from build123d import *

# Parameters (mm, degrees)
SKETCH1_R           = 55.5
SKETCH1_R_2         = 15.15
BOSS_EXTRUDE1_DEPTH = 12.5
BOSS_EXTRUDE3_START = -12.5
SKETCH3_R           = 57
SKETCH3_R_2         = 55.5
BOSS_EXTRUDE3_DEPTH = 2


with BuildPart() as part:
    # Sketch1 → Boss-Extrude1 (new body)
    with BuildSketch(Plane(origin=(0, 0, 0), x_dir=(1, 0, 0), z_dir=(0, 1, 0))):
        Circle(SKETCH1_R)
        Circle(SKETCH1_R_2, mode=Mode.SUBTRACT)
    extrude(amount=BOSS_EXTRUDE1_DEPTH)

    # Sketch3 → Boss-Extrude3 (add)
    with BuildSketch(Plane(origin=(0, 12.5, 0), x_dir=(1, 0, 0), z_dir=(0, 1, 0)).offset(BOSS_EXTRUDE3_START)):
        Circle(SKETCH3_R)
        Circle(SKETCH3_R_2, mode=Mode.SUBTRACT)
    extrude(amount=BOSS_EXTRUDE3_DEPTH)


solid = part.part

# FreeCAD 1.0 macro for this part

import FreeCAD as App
import Part
import Sketcher
from FreeCAD import Vector
Q = App.Units.Quantity

doc = App.newDocument("Part")
body = doc.addObject("PartDesign::Body", "Body")

# Sketch on XZ plane
sketch1 = doc.addObject("Sketcher::SketchObject", "Sketch")
body.addObject(sketch1)
sketch1.AttachmentSupport = (doc.XZ_Plane, [""])
sketch1.MapMode = "FlatFace"
sketch1.addGeometry([
    Part.Circle(Vector(0, 0, 0), Vector(0, 0, 1), 56),
    Part.Circle(Vector(0, 0, 0), Vector(0, 0, 1), 15),
], False)
sketch1.addConstraint([
    Sketcher.Constraint("Coincident", 0, 3, -1, 1),
    Sketcher.Constraint("Coincident", 1, 3, -1, 1),
    Sketcher.Constraint("Diameter", 0, Q("111 mm")),
    Sketcher.Constraint("Diameter", 1, Q("30.3 mm")),
])
pad1 = doc.addObject("PartDesign::Pad", "Pad")
body.addObject(pad1)
pad1.Profile = sketch1
pad1.Length = 12.5
pad1.Reversed = True

# Sketch on XZ plane
sketch2 = doc.addObject("Sketcher::SketchObject", "Sketch001")
body.addObject(sketch2)
sketch2.AttachmentSupport = (doc.XZ_Plane, [""])
sketch2.MapMode = "FlatFace"
sketch2.addGeometry([
    Part.Circle(Vector(0, 0, 0), Vector(0, 0, 1), 57),
    Part.Circle(Vector(0, 0, 0), Vector(0, 0, 1), 56),
], False)
sketch2.addConstraint([
    Sketcher.Constraint("Coincident", 0, 3, -1, 1),
    Sketcher.Constraint("Coincident", 1, 3, -1, 1),
    Sketcher.Constraint("Diameter", 0, Q("114 mm")),
    Sketcher.Constraint("Diameter", 1, Q("111 mm")),
])
pad2 = doc.addObject("PartDesign::Pad", "Pad001")
body.addObject(pad2)
pad2.Profile = sketch2
pad2.Length = 2
pad2.Reversed = True

doc.recompute()
